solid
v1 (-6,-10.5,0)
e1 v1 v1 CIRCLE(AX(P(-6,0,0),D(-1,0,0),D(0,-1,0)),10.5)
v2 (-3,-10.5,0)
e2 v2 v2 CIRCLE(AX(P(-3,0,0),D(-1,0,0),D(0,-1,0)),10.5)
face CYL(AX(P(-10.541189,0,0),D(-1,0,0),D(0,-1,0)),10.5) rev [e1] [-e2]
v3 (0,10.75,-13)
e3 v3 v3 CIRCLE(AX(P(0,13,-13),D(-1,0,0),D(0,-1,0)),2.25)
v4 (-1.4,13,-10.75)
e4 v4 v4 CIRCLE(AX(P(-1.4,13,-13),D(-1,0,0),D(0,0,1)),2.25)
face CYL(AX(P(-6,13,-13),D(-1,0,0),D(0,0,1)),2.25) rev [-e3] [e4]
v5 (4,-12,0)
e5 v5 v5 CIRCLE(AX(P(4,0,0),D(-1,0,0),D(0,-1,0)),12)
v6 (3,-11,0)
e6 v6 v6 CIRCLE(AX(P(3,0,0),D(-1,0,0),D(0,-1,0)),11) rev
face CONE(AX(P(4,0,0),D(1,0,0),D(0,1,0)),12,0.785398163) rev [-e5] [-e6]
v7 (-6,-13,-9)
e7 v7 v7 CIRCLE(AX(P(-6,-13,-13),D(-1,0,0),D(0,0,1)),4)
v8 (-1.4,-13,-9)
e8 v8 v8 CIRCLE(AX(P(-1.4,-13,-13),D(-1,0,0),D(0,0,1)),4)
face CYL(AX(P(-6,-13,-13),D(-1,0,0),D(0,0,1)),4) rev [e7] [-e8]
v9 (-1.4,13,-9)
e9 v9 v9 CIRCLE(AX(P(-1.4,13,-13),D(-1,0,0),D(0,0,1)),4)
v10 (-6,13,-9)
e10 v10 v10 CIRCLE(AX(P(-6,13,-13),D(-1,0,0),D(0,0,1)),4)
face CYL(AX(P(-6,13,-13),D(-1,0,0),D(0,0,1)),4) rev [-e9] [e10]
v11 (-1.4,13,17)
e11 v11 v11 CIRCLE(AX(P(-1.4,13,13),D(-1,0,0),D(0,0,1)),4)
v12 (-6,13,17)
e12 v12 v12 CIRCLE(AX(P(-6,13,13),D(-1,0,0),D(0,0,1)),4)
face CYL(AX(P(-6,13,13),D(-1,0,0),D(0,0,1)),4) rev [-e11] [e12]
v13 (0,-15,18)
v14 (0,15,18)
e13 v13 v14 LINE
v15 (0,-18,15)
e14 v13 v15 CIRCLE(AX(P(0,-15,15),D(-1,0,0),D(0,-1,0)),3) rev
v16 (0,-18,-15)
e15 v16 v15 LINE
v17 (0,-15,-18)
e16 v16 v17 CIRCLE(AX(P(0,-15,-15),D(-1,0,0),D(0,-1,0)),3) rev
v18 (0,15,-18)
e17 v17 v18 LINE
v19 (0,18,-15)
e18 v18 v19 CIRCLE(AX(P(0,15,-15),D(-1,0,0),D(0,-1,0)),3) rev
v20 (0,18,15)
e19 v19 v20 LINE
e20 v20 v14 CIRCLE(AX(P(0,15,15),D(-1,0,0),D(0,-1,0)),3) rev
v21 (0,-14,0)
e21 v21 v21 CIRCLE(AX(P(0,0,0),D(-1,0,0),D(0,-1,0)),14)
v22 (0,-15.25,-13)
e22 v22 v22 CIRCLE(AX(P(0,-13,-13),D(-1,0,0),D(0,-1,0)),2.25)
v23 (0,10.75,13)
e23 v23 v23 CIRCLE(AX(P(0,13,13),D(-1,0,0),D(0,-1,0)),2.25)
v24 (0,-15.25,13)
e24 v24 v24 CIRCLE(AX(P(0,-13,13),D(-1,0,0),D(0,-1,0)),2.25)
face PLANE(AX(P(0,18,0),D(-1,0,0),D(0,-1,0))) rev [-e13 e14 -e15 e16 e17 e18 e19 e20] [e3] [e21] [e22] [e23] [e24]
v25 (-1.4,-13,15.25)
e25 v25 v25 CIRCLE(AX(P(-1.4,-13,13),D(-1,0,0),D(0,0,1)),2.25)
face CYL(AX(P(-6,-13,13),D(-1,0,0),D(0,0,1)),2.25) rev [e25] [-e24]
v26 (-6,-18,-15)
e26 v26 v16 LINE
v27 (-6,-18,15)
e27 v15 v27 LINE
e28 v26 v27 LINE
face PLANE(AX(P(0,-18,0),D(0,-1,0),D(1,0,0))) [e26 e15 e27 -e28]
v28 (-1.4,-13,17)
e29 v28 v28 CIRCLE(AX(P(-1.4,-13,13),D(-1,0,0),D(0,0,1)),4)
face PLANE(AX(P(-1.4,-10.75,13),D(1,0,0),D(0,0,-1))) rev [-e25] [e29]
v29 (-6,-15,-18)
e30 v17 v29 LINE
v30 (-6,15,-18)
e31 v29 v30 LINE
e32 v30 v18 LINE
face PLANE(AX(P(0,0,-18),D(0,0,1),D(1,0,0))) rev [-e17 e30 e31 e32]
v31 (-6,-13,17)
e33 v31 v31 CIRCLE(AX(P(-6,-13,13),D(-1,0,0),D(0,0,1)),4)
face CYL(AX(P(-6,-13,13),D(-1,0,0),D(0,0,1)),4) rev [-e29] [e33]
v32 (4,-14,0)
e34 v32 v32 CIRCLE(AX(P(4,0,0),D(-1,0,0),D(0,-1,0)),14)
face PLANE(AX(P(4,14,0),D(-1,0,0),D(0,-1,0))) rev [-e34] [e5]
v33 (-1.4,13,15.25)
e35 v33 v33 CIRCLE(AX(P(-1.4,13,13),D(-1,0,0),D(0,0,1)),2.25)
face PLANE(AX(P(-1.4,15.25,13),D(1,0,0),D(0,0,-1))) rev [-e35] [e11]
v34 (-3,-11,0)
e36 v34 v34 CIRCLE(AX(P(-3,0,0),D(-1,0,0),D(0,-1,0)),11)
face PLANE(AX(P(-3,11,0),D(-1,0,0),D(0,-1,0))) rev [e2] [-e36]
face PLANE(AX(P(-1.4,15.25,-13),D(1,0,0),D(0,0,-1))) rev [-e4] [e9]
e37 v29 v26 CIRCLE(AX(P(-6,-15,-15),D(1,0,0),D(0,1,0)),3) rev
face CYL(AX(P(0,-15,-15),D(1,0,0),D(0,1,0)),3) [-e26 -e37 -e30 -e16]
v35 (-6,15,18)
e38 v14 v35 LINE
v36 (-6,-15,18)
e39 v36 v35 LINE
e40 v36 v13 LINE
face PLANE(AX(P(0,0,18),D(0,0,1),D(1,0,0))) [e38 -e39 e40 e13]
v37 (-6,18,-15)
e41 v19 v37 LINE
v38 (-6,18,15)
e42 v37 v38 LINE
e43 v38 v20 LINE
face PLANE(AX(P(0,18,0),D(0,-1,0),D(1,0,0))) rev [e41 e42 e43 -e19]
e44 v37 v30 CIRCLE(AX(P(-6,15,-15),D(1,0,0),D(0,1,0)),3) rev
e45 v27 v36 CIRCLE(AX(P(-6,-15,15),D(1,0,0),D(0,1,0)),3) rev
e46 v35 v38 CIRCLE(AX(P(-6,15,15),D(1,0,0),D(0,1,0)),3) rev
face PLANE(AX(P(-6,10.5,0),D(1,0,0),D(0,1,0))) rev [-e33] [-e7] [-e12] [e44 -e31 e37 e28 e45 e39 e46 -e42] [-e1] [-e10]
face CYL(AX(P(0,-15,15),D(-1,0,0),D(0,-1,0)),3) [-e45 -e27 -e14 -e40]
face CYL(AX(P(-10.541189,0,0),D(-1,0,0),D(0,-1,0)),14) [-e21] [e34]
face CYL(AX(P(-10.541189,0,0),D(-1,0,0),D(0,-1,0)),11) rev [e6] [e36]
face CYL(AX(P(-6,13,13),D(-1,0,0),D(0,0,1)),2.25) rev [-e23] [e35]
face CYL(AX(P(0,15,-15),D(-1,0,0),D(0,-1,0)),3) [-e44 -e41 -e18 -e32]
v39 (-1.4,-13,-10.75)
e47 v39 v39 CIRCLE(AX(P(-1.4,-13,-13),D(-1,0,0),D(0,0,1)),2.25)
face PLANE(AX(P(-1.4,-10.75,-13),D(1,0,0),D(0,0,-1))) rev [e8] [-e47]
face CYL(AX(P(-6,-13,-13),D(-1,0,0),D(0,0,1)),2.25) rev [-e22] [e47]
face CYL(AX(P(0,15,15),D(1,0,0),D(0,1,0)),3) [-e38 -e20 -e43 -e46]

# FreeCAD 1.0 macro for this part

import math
import FreeCAD as App
import Part
import Sketcher

V = App.Vector
Q = App.Units.Quantity


def edges_at(feature, points):
    """Names of the edges that pass closest to the given points."""
    edges = feature.Shape.Edges
    near = lambda p: min(range(len(edges)), key=lambda i: edges[i].distToShape(Part.Vertex(*p))[0])
    return sorted({f"Edge{near(p) + 1}" for p in points})

doc = App.newDocument("Part")
body = doc.addObject("PartDesign::Body", "Body")

sketch1 = body.newObject("Sketcher::SketchObject", "Sketch")
sketch1.AttachmentSupport = (doc.getObject("XY_Plane"), [""])
sketch1.MapMode = "FlatFace"
sketch1.addGeometry(Part.LineSegment(V(-6, 18, 0), V(-6, 10.5, 0)), False)
sketch1.addGeometry(Part.LineSegment(V(-6, 10.5, 0), V(-3, 10.5, 0)), False)
sketch1.addGeometry(Part.LineSegment(V(-3, 10.5, 0), V(-3, 11, 0)), False)
sketch1.addGeometry(Part.LineSegment(V(-3, 11, 0), V(4, 11, 0)), False)
sketch1.addGeometry(Part.LineSegment(V(4, 11, 0), V(4, 14, 0)), False)
sketch1.addGeometry(Part.LineSegment(V(4, 14, 0), V(0, 14, 0)), False)
sketch1.addGeometry(Part.LineSegment(V(0, 14, 0), V(0, 18, 0)), False)
sketch1.addGeometry(Part.LineSegment(V(0, 18, 0), V(-6, 18, 0)), False)
sketch1.addConstraint(Sketcher.Constraint("Coincident", 0, 2, 1, 1))
sketch1.addConstraint(Sketcher.Constraint("Coincident", 1, 2, 2, 1))
sketch1.addConstraint(Sketcher.Constraint("Coincident", 2, 2, 3, 1))
sketch1.addConstraint(Sketcher.Constraint("Coincident", 3, 2, 4, 1))
sketch1.addConstraint(Sketcher.Constraint("Coincident", 4, 2, 5, 1))
sketch1.addConstraint(Sketcher.Constraint("Coincident", 5, 2, 6, 1))
sketch1.addConstraint(Sketcher.Constraint("Coincident", 6, 2, 7, 1))
sketch1.addConstraint(Sketcher.Constraint("Coincident", 7, 2, 0, 1))
sketch1.addConstraint(Sketcher.Constraint("Vertical", 0))
sketch1.addConstraint(Sketcher.Constraint("Horizontal", 1))
sketch1.addConstraint(Sketcher.Constraint("Vertical", 2))
sketch1.addConstraint(Sketcher.Constraint("Horizontal", 3))
sketch1.addConstraint(Sketcher.Constraint("Vertical", 4))
sketch1.addConstraint(Sketcher.Constraint("Horizontal", 5))
sketch1.addConstraint(Sketcher.Constraint("Vertical", 6))
sketch1.addConstraint(Sketcher.Constraint("Horizontal", 7))
sketch1.addConstraint(Sketcher.Constraint("PointOnObject", 5, 2, -2))
sketch1.addConstraint(Sketcher.Constraint("Equal", 1, 4))
sketch1.addConstraint(Sketcher.Constraint("Equal", 5, 6))
sketch1.addConstraint(Sketcher.Constraint("DistanceX", 1, 1, 1, 2, Q("3 mm")))
sketch1.addConstraint(Sketcher.Constraint("DistanceX", 3, 1, 3, 2, Q("7 mm")))
sketch1.addConstraint(Sketcher.Constraint("DistanceX", 5, 2, 5, 1, Q("4 mm")))
sketch1.addConstraint(Sketcher.Constraint("DistanceY", 0, 2, 0, 1, Q("7.5 mm")))
sketch1.addConstraint(Sketcher.Constraint("DistanceY", -1, 1, 2, 2, Q("11 mm")))
revolution = body.newObject("PartDesign::Revolution", "Revolution")
revolution.Profile = sketch1
revolution.ReferenceAxis = (sketch1, ["H_Axis"])
revolution.Angle = 360

sketch2 = body.newObject("Sketcher::SketchObject", "Sketch001")
sketch2.AttachmentSupport = (doc.getObject("YZ_Plane"), [""])
sketch2.MapMode = "FlatFace"
sketch2.AttachmentOffset = App.Placement(V(0, 0, -6), App.Rotation())
sketch2.addGeometry(Part.ArcOfCircle(Part.Circle(V(0, 0, 0), V(0, 0, 1), 18), math.radians(0), math.radians(90)), False)
sketch2.addGeometry(Part.LineSegment(V(0, 18, 0), V(18, 18, 0)), False)
sketch2.addGeometry(Part.LineSegment(V(18, 18, 0), V(18, 0, 0)), False)
sketch2.addGeometry(Part.LineSegment(V(18, -18, 0), V(0, -18, 0)), False)
sketch2.addGeometry(Part.ArcOfCircle(Part.Circle(V(0, 0, 0), V(0, 0, 1), 18), math.radians(-90), math.radians(0)), False)
sketch2.addGeometry(Part.LineSegment(V(18, 0, 0), V(18, -18, 0)), False)
sketch2.addGeometry(Part.LineSegment(V(0, -18, 0), V(-18, -18, 0)), False)
sketch2.addGeometry(Part.LineSegment(V(-18, -18, 0), V(-18, 0, 0)), False)
sketch2.addGeometry(Part.ArcOfCircle(Part.Circle(V(0, 0, 0), V(0, 0, 1), 18), math.radians(180), math.radians(270)), False)
sketch2.addGeometry(Part.ArcOfCircle(Part.Circle(V(0, 0, 0), V(0, 0, 1), 18), math.radians(90), math.radians(180)), False)
sketch2.addGeometry(Part.LineSegment(V(-18, 0, 0), V(-18, 18, 0)), False)
sketch2.addGeometry(Part.LineSegment(V(-18, 18, 0), V(0, 18, 0)), False)
sketch2.addConstraint(Sketcher.Constraint("Tangent", 0, 2, 1, 1))
sketch2.addConstraint(Sketcher.Constraint("Coincident", 1, 2, 2, 1))
sketch2.addConstraint(Sketcher.Constraint("Tangent", 2, 2, 0, 1))
sketch2.addConstraint(Sketcher.Constraint("Tangent", 3, 2, 4, 1))
sketch2.addConstraint(Sketcher.Constraint("Tangent", 4, 2, 5, 1))
sketch2.addConstraint(Sketcher.Constraint("Coincident", 5, 2, 3, 1))
sketch2.addConstraint(Sketcher.Constraint("Coincident", 6, 2, 7, 1))
sketch2.addConstraint(Sketcher.Constraint("Tangent", 7, 2, 8, 1))
sketch2.addConstraint(Sketcher.Constraint("Tangent", 8, 2, 6, 1))
sketch2.addConstraint(Sketcher.Constraint("Tangent", 9, 2, 10, 1))
sketch2.addConstraint(Sketcher.Constraint("Coincident", 10, 2, 11, 1))
sketch2.addConstraint(Sketcher.Constraint("Tangent", 11, 2, 9, 1))
sketch2.addConstraint(Sketcher.Constraint("Horizontal", 1))
sketch2.addConstraint(Sketcher.Constraint("Vertical", 2))
sketch2.addConstraint(Sketcher.Constraint("Horizontal", 3))
sketch2.addConstraint(Sketcher.Constraint("Vertical", 5))
sketch2.addConstraint(Sketcher.Constraint("Horizontal", 6))
sketch2.addConstraint(Sketcher.Constraint("Vertical", 7))
sketch2.addConstraint(Sketcher.Constraint("Vertical", 10))
sketch2.addConstraint(Sketcher.Constraint("Horizontal", 11))
sketch2.addConstraint(Sketcher.Constraint("Coincident", 0, 3, -1, 1))
sketch2.addConstraint(Sketcher.Constraint("Coincident", 4, 3, -1, 1))
sketch2.addConstraint(Sketcher.Constraint("Coincident", 8, 3, -1, 1))
sketch2.addConstraint(Sketcher.Constraint("Coincident", 9, 3, -1, 1))
sketch2.addConstraint(Sketcher.Constraint("Equal", 0, 4))
sketch2.addConstraint(Sketcher.Constraint("Equal", 4, 8))
sketch2.addConstraint(Sketcher.Constraint("Equal", 8, 9))
sketch2.addConstraint(Sketcher.Constraint("Radius", 0, Q("18 mm")))
pad1 = body.newObject("PartDesign::Pad", "Pad")
pad1.Profile = sketch2
pad1.Length = 6
doc.recompute()

fillet = body.newObject("PartDesign::Fillet", "Fillet")
fillet.Base = (pad1, edges_at(pad1, [
    (-3, 18, 18),
    (-3, 18, -18),
    (-3, -18, -18),
    (-3, -18, 18),
]))
fillet.Radius = 3

sketch3 = body.newObject("Sketcher::SketchObject", "Sketch002")
sketch3.AttachmentSupport = (doc.getObject("YZ_Plane"), [""])
sketch3.MapMode = "FlatFace"
sketch3.AttachmentOffset = App.Placement(V(0, 0, -6), App.Rotation())
sketch3.addGeometry(Part.Circle(V(13, -13, 0), V(0, 0, 1), 2.2), False)
sketch3.addGeometry(Part.Circle(V(13, 13, 0), V(0, 0, 1), 2.2), False)
sketch3.addGeometry(Part.Circle(V(-13, 13, 0), V(0, 0, 1), 2.2), False)
sketch3.addGeometry(Part.Circle(V(-13, -13, 0), V(0, 0, 1), 2.2), False)
sketch3.addConstraint(Sketcher.Constraint("Equal", 0, 1))
sketch3.addConstraint(Sketcher.Constraint("Equal", 1, 2))
sketch3.addConstraint(Sketcher.Constraint("Equal", 2, 3))
sketch3.addConstraint(Sketcher.Constraint("Symmetric", 0, 3, 2, 3, -1, 1))
sketch3.addConstraint(Sketcher.Constraint("Symmetric", 1, 3, 3, 3, -1, 1))
sketch3.addConstraint(Sketcher.Constraint("Symmetric", 1, 3, 2, 3, -2))
sketch3.addConstraint(Sketcher.Constraint("Diameter", 0, Q("4.5 mm")))
sketch3.addConstraint(Sketcher.Constraint("DistanceX", -1, 1, 0, 3, Q("13 mm")))
sketch3.addConstraint(Sketcher.Constraint("DistanceY", 0, 3, -1, 1, Q("13 mm")))
doc.recompute()
hole = body.newObject("PartDesign::Hole", "Hole")
hole.Profile = sketch3
hole.ThreadType = "None"
hole.Diameter = 4.5
hole.DepthType = "ThroughAll"
hole.HoleCutType = "Counterbore"
hole.HoleCutDiameter = 8
hole.HoleCutDepth = 4.6
hole.Reversed = True
doc.recompute()

chamfer = body.newObject("PartDesign::Chamfer", "Chamfer")
chamfer.Base = (hole, edges_at(hole, [(4, -11, 0)]))
chamfer.Size = 1

doc.recompute()
